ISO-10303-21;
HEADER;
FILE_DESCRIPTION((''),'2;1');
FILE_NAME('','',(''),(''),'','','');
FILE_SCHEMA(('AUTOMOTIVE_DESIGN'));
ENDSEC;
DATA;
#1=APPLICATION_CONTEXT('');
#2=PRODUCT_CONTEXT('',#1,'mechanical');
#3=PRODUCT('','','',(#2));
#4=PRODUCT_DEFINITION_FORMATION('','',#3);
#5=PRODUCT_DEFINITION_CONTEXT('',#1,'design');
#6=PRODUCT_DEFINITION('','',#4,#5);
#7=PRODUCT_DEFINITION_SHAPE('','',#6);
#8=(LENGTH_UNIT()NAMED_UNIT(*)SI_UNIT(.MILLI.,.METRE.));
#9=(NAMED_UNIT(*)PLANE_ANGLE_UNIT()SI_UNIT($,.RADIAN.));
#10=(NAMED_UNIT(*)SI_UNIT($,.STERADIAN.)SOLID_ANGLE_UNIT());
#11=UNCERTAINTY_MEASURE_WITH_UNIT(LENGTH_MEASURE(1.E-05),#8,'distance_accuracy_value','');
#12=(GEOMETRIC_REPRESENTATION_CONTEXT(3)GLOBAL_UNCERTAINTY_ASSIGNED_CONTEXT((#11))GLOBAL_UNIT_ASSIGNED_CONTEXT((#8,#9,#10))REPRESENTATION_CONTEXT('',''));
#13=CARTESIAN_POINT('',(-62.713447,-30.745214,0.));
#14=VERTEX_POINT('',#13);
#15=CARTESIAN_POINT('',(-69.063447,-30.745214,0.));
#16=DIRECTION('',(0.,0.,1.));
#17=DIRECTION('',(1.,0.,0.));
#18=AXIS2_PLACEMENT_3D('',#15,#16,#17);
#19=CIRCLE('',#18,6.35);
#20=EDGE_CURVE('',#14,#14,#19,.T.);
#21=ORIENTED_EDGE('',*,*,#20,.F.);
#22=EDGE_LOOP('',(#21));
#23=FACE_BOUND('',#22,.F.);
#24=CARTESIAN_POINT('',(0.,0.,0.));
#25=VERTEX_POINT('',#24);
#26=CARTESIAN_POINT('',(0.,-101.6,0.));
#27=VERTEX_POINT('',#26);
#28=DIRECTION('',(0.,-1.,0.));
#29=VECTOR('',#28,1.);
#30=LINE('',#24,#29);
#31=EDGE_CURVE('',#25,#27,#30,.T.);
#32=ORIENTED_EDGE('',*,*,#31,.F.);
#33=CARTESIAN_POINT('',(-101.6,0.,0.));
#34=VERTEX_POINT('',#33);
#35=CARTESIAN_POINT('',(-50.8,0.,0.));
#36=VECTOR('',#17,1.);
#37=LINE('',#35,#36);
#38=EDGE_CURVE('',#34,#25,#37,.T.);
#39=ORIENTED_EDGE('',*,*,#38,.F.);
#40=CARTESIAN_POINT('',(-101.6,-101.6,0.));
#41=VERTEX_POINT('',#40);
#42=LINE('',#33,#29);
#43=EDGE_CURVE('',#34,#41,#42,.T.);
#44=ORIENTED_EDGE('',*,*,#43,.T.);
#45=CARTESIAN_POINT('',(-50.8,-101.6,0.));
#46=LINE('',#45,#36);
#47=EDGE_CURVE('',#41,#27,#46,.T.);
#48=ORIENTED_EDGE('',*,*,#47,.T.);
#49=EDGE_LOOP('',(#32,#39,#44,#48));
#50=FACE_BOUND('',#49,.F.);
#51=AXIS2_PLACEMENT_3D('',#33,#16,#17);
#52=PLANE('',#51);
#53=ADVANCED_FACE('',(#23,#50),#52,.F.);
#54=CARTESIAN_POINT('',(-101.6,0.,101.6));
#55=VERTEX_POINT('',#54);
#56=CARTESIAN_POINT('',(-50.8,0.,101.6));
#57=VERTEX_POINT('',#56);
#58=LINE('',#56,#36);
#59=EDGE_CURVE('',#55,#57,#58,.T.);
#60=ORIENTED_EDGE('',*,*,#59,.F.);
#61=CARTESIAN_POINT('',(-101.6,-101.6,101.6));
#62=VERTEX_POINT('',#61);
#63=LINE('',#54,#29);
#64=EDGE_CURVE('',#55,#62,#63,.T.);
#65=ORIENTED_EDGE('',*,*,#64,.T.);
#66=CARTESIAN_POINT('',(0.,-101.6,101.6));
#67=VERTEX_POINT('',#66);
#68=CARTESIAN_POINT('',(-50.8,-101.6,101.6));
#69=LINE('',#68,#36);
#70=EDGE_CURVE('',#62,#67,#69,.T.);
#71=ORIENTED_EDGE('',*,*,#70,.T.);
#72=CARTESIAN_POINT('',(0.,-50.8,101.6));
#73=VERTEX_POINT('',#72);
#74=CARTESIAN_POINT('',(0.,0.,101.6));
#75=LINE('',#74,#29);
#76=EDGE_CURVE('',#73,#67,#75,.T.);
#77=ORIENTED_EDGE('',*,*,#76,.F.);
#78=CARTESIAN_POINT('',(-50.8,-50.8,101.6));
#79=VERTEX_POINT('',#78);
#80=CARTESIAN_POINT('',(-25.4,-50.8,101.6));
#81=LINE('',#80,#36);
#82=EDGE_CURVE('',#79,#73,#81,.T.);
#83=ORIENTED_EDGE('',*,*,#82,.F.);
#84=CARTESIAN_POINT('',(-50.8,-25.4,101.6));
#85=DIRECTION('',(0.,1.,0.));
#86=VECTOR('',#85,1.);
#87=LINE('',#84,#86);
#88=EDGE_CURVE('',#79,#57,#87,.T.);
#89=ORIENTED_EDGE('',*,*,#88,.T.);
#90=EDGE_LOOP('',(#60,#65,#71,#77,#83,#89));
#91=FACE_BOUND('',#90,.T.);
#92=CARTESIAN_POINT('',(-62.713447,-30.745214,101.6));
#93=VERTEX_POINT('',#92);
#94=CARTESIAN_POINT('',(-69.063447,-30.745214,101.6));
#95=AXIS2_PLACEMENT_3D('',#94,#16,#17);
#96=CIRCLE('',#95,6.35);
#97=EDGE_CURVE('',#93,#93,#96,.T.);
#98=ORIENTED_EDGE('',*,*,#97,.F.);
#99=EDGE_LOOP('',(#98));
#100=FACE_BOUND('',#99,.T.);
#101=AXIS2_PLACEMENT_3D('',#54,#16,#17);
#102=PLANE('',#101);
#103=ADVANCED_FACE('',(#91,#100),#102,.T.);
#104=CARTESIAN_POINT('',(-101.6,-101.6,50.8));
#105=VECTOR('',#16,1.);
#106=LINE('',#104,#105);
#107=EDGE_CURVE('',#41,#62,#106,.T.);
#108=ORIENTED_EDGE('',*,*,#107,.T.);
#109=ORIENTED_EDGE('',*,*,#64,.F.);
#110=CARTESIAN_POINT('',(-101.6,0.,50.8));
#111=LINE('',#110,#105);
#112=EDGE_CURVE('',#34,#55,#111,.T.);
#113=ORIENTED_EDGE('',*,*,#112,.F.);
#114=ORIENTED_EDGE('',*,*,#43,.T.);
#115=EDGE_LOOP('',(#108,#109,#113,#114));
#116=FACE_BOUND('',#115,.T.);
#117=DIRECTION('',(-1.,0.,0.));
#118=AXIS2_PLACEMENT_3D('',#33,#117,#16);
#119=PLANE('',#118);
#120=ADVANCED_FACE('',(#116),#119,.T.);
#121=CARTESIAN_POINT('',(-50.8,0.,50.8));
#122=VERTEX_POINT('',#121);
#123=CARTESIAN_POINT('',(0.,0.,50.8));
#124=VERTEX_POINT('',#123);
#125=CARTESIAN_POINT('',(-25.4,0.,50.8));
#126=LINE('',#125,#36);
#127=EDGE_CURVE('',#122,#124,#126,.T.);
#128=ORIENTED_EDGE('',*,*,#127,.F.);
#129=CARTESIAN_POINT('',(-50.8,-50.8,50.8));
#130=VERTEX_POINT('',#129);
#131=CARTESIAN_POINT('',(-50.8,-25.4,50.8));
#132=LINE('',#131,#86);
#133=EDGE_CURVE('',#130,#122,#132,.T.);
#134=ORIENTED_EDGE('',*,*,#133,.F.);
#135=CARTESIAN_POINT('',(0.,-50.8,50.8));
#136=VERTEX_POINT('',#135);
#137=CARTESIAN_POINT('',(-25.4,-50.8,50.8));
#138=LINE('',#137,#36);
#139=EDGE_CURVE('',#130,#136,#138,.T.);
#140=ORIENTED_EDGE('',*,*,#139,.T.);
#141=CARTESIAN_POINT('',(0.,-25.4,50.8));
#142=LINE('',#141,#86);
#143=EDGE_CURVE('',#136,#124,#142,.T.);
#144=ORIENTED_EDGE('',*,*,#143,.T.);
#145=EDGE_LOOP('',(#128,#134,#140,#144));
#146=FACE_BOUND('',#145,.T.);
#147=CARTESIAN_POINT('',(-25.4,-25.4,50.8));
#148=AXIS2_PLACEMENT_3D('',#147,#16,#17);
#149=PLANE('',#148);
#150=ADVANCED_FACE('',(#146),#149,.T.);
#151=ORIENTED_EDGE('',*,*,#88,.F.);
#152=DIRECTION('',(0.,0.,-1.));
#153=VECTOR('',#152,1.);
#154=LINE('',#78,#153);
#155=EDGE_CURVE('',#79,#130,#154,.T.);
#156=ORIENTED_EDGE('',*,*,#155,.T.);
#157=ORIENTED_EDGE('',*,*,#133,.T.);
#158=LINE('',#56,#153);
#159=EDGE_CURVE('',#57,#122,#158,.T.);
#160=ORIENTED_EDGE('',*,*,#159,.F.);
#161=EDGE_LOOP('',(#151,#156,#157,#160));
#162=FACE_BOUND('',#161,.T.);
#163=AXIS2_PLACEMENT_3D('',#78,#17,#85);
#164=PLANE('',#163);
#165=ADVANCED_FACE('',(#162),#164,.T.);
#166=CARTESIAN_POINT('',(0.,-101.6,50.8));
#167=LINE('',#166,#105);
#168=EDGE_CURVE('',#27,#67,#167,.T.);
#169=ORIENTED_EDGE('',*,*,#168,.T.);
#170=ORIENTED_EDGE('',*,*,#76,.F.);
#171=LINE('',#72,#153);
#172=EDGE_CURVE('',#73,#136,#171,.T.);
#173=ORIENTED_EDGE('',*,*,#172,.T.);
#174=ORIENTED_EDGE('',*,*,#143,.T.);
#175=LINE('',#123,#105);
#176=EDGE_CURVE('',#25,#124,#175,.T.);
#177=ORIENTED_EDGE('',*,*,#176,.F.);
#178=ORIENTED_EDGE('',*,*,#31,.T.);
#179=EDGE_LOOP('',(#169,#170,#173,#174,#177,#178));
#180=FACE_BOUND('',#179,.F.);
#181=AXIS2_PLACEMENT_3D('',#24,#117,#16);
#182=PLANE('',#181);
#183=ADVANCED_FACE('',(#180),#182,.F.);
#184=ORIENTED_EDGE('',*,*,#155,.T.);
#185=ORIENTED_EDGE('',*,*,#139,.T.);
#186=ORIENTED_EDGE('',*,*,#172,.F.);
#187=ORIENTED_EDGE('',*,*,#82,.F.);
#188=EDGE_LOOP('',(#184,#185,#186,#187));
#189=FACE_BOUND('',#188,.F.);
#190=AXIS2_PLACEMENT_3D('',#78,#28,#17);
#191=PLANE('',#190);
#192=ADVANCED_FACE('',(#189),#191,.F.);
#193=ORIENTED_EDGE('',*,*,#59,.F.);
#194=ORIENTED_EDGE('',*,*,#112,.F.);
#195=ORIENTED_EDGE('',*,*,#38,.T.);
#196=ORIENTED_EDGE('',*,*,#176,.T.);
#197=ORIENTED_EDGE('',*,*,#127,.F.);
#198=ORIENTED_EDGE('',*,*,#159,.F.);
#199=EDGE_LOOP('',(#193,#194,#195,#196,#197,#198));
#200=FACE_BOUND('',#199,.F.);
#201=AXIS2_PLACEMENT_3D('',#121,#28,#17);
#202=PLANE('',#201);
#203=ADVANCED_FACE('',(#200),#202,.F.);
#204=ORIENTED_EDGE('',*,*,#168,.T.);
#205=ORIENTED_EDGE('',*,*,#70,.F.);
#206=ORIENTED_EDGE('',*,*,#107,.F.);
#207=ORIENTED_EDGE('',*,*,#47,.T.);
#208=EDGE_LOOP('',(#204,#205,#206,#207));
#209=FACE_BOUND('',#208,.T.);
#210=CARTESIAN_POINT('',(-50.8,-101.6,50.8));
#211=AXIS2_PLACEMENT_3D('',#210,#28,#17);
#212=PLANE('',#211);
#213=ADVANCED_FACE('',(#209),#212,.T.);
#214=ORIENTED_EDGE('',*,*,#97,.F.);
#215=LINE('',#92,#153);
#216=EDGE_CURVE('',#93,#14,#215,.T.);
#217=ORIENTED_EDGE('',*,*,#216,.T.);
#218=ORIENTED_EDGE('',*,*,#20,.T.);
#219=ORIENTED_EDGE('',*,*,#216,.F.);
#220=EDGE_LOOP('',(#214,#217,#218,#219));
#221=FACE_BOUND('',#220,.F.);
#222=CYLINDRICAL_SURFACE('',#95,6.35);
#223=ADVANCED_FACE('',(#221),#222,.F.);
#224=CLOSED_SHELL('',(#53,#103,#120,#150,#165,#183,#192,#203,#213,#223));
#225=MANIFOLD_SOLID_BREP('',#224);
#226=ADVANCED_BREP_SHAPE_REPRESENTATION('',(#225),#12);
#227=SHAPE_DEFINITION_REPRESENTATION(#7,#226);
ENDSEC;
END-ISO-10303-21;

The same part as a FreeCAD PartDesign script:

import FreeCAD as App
import Part
import Sketcher
Q = App.Units.Quantity

doc = App.newDocument("Part")
body = doc.addObject("PartDesign::Body", "Body")

sketch1 = body.newObject("Sketcher::SketchObject", "Sketch")
sketch1.AttachmentSupport = (doc.getObject("XZ_Plane"), [""])
sketch1.MapMode = "FlatFace"
sketch1.addGeometry([
    Part.LineSegment(App.Vector(-101.6, 101.6, 0), App.Vector(-101.6, 0, 0)),
    Part.LineSegment(App.Vector(-101.6, 0, 0), App.Vector(0, 0, 0)),
    Part.LineSegment(App.Vector(0, 0, 0), App.Vector(0, 101.6, 0)),
    Part.LineSegment(App.Vector(0, 101.6, 0), App.Vector(-101.6, 101.6, 0)),
], False)
sketch1.addConstraint([
    Sketcher.Constraint("Coincident", 0, 2, 1, 1),
    Sketcher.Constraint("Coincident", 1, 2, 2, 1),
    Sketcher.Constraint("Coincident", 2, 2, 3, 1),
    Sketcher.Constraint("Coincident", 3, 2, 0, 1),
    Sketcher.Constraint("Vertical", 0),
    Sketcher.Constraint("Horizontal", 1),
    Sketcher.Constraint("Vertical", 2),
    Sketcher.Constraint("Horizontal", 3),
    Sketcher.Constraint("Coincident", 1, 2, -1, 1),
    Sketcher.Constraint("Equal", 3, 0),
    Sketcher.Constraint("DistanceX", 1, 1, 1, 2, Q("4 in")),
])
pad1 = body.newObject("PartDesign::Pad", "Pad")
pad1.Profile = sketch1
pad1.Length = Q("4 in")

sketch2 = body.newObject("Sketcher::SketchObject", "Sketch001")
sketch2.AttachmentSupport = (doc.getObject("XY_Plane"), [""])
sketch2.MapMode = "FlatFace"
sketch2.AttachmentOffset = App.Placement(App.Vector(0, 0, 4 * 25.4), App.Rotation())
sketch2.addGeometry(Part.Circle(App.Vector(-69.063447, -30.745214, 0), App.Vector(0, 0, 1), 6.35), False)
sketch2.addConstraint([
    Sketcher.Constraint("Diameter", 0, Q("0.5 in")),
    Sketcher.Constraint("DistanceX", 0, 3, -1, 1, 69.063447),
    Sketcher.Constraint("DistanceY", 0, 3, -1, 1, 30.745214),
])
pocket1 = body.newObject("PartDesign::Pocket", "Pocket")
pocket1.Profile = sketch2
pocket1.Length = Q("4 in")

sketch3 = body.newObject("Sketcher::SketchObject", "Sketch002")
sketch3.AttachmentSupport = (doc.getObject("XY_Plane"), [""])
sketch3.MapMode = "FlatFace"
sketch3.AttachmentOffset = App.Placement(App.Vector(0, 0, 4 * 25.4), App.Rotation())
sketch3.addGeometry([
    Part.LineSegment(App.Vector(-50.8, 0, 0), App.Vector(-50.8, -50.8, 0)),
    Part.LineSegment(App.Vector(-50.8, -50.8, 0), App.Vector(0, -50.8, 0)),
    Part.LineSegment(App.Vector(0, -50.8, 0), App.Vector(0, 0, 0)),
    Part.LineSegment(App.Vector(0, 0, 0), App.Vector(-50.8, 0, 0)),
], False)
sketch3.addConstraint([
    Sketcher.Constraint("Coincident", 0, 2, 1, 1),
    Sketcher.Constraint("Coincident", 1, 2, 2, 1),
    Sketcher.Constraint("Coincident", 2, 2, 3, 1),
    Sketcher.Constraint("Coincident", 3, 2, 0, 1),
    Sketcher.Constraint("Vertical", 0),
    Sketcher.Constraint("Horizontal", 1),
    Sketcher.Constraint("Vertical", 2),
    Sketcher.Constraint("Horizontal", 3),
    Sketcher.Constraint("Coincident", 2, 2, -1, 1),
    Sketcher.Constraint("Equal", 3, 0),
    Sketcher.Constraint("DistanceX", 1, 1, 1, 2, Q("2 in")),
])
pocket2 = body.newObject("PartDesign::Pocket", "Pocket001")
pocket2.Profile = sketch3
pocket2.Length = Q("2 in")

doc.recompute()
